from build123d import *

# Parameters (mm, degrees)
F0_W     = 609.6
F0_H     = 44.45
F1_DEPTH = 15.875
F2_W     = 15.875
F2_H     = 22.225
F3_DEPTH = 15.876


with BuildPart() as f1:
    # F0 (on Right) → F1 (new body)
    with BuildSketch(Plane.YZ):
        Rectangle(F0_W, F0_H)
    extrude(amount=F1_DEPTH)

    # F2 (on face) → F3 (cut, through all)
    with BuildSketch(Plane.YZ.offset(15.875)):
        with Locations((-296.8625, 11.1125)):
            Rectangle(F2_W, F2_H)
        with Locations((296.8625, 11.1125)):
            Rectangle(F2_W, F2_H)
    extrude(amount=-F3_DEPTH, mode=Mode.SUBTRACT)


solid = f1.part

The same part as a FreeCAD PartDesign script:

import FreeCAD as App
import Part
import Sketcher

V = App.Vector
Q = App.Units.Quantity


def add_polygon(sketch, points):
    """Adds a closed chain of lines whose ends are joined by coincident constraints."""
    first, n = sketch.GeometryCount, len(points)
    for a, b in zip(points, points[1:] + points[:1]):
        sketch.addGeometry(Part.LineSegment(App.Vector(*a, 0), App.Vector(*b, 0)), False)
    for i in range(n):
        sketch.addConstraint(Sketcher.Constraint("Coincident", first + i, 2, first + (i + 1) % n, 1))

doc = App.newDocument("Part")
params = doc.addObject("Spreadsheet::Sheet", "Params")
for row, (alias, value) in enumerate([
    ("sketch1_width", "24 in"),
    ("sketch1_height", "1.75 in"),
    ("pad1_length", "0.625 in"),
    ("sketch2_width", "0.625 in"),
    ("sketch2_height", "0.875 in"),
], start=1):
    params.set(f"A{row}", alias)
    params.set(f"B{row}", "=" + value)
    params.setAlias(f"B{row}", alias)

body = doc.addObject("PartDesign::Body", "Body")

# Sketch on YZ plane
sketch1 = body.newObject("Sketcher::SketchObject", "Sketch")
sketch1.AttachmentSupport = (doc.getObject("YZ_Plane"), [""])
sketch1.MapMode = "FlatFace"
add_polygon(sketch1, [(-305, 22), (-305, -22), (305, -22), (305, 22)])  # lines 0-3
sketch1.addConstraint(Sketcher.Constraint("Vertical", 0))
sketch1.addConstraint(Sketcher.Constraint("Horizontal", 1))
sketch1.addConstraint(Sketcher.Constraint("Vertical", 2))
sketch1.addConstraint(Sketcher.Constraint("Horizontal", 3))
sketch1.addConstraint(Sketcher.Constraint("Symmetric", 0, 2, 2, 2, -1, 1))
sketch1.addConstraint(Sketcher.Constraint("DistanceX", 1, 1, 1, 2, Q("24 in")))
sketch1.addConstraint(Sketcher.Constraint("DistanceY", 0, 2, 0, 1, Q("1.75 in")))
sketch1.setExpression("Constraints[9]", "Params.sketch1_width")
sketch1.setExpression("Constraints[10]", "Params.sketch1_height")
pad1 = body.newObject("PartDesign::Pad", "Pad")
pad1.Profile = sketch1
pad1.setExpression("Length", "Params.pad1_length")

# Sketch on YZ plane
sketch2 = body.newObject("Sketcher::SketchObject", "Sketch001")
sketch2.AttachmentSupport = (doc.getObject("YZ_Plane"), [""])
sketch2.MapMode = "FlatFace"
sketch2.AttachmentOffset = App.Placement(V(0, 0, 0.625 * 25.4), App.Rotation())
add_polygon(sketch2, [(-305, 22), (-305, 0), (-289, 0), (-289, 22)])  # lines 0-3
add_polygon(sketch2, [(289, 22), (289, 0), (305, 0), (305, 22)])  # lines 4-7
sketch2.addConstraint(Sketcher.Constraint("Vertical", 0))
sketch2.addConstraint(Sketcher.Constraint("Horizontal", 1))
sketch2.addConstraint(Sketcher.Constraint("Vertical", 2))
sketch2.addConstraint(Sketcher.Constraint("Horizontal", 3))
sketch2.addConstraint(Sketcher.Constraint("Vertical", 4))
sketch2.addConstraint(Sketcher.Constraint("Horizontal", 5))
sketch2.addConstraint(Sketcher.Constraint("Vertical", 6))
sketch2.addConstraint(Sketcher.Constraint("Horizontal", 7))
sketch2.addConstraint(Sketcher.Constraint("Symmetric", 1, 2, 4, 2, -1, 1))
sketch2.addConstraint(Sketcher.Constraint("Symmetric", 0, 2, 5, 2, -2))
sketch2.addConstraint(Sketcher.Constraint("Horizontal", 3, 2, 6, 2))
sketch2.addConstraint(Sketcher.Constraint("DistanceX", 0, 2, -1, 1, Q("12 in")))
sketch2.addConstraint(Sketcher.Constraint("DistanceX", 1, 1, 1, 2, Q("0.625 in")))
sketch2.addConstraint(Sketcher.Constraint("DistanceY", 0, 2, 0, 1, Q("0.875 in")))
sketch2.setExpression("Constraints[20]", "Params.sketch2_width")
sketch2.setExpression("Constraints[21]", "Params.sketch2_height")
pocket1 = body.newObject("PartDesign::Pocket", "Pocket")
pocket1.Profile = sketch2
pocket1.Type = "ThroughAll"

doc.recompute()
